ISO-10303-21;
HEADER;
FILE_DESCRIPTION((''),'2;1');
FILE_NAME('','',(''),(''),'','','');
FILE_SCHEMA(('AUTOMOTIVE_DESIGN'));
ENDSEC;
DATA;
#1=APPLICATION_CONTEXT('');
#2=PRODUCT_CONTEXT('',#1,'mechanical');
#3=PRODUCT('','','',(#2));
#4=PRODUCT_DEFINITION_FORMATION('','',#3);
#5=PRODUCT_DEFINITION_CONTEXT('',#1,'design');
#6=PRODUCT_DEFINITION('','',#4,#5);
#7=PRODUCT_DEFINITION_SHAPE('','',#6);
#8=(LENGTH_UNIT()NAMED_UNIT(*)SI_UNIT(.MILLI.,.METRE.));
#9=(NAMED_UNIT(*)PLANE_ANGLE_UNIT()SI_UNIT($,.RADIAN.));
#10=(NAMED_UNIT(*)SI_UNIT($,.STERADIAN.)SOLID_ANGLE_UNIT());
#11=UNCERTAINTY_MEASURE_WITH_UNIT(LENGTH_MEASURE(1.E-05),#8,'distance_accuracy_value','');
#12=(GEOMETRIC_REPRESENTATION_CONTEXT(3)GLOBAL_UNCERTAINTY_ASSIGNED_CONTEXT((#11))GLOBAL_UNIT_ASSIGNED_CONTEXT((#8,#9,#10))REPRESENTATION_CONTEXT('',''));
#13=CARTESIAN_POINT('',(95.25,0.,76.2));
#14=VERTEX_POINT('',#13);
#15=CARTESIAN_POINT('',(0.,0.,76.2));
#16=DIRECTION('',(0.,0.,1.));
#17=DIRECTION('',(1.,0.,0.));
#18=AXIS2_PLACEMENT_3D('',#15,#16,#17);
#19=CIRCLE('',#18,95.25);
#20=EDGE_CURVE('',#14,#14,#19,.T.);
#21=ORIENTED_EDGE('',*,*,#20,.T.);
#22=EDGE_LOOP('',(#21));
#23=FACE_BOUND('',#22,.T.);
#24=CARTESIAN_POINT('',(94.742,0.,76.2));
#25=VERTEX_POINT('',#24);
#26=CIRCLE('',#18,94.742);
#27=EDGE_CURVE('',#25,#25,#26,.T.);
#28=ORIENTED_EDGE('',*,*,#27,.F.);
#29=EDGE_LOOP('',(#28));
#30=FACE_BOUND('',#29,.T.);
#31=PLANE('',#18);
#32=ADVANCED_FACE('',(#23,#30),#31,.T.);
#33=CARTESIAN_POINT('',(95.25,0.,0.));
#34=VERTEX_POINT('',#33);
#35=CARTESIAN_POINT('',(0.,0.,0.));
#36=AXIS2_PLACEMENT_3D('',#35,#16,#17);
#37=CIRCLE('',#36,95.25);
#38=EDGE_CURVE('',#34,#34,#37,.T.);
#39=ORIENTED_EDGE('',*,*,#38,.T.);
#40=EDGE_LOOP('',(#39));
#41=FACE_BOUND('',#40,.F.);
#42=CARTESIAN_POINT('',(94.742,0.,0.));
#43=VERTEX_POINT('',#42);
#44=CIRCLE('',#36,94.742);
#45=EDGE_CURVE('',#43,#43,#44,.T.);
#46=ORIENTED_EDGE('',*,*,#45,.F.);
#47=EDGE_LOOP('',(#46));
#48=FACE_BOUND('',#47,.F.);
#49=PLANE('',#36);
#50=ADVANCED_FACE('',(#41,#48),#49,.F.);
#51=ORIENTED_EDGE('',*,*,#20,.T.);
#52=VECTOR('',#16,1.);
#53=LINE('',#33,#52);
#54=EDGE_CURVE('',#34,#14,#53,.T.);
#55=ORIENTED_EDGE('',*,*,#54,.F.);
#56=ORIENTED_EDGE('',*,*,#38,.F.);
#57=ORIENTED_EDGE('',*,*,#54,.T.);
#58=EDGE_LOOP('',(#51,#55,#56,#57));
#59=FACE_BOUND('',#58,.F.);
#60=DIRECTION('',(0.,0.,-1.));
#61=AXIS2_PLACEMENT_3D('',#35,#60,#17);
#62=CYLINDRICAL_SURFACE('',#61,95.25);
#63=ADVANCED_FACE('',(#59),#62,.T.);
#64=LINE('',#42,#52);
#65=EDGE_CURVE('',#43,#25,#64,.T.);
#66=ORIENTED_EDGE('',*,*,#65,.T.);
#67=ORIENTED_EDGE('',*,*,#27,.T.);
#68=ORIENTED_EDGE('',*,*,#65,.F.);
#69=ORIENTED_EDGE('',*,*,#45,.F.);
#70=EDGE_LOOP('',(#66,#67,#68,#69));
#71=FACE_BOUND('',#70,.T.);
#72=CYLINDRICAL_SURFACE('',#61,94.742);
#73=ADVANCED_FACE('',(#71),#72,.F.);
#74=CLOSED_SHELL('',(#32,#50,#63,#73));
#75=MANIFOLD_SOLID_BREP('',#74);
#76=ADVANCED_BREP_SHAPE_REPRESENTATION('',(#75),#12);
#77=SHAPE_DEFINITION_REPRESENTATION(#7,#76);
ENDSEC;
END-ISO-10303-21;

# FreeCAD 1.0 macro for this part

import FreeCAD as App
import Part
import Sketcher

V = App.Vector
Q = App.Units.Quantity

doc = App.newDocument("Part")
body = doc.addObject("PartDesign::Body", "Body")

sketch1 = doc.addObject("Sketcher::SketchObject", "Sketch")
body.addObject(sketch1)
sketch1.AttachmentSupport = (doc.XY_Plane, [""])
sketch1.MapMode = "FlatFace"
sketch1.addGeometry(Part.Circle(V(0, 0, 0), V(0, 0, 1), 95.25), False)
sketch1.addGeometry(Part.Circle(V(0, 0, 0), V(0, 0, 1), 94.742), False)
sketch1.addConstraint(Sketcher.Constraint("Coincident", 0, 3, -1, 1))
sketch1.addConstraint(Sketcher.Constraint("Coincident", 1, 3, -1, 1))
sketch1.addConstraint(Sketcher.Constraint("Diameter", 0, Q("7.5 in")))
sketch1.addConstraint(Sketcher.Constraint("Diameter", 1, Q("7.46 in")))
pad1 = doc.addObject("PartDesign::Pad", "Pad")
body.addObject(pad1)
pad1.Profile = sketch1
pad1.Length = Q("3 in")

doc.recompute()
